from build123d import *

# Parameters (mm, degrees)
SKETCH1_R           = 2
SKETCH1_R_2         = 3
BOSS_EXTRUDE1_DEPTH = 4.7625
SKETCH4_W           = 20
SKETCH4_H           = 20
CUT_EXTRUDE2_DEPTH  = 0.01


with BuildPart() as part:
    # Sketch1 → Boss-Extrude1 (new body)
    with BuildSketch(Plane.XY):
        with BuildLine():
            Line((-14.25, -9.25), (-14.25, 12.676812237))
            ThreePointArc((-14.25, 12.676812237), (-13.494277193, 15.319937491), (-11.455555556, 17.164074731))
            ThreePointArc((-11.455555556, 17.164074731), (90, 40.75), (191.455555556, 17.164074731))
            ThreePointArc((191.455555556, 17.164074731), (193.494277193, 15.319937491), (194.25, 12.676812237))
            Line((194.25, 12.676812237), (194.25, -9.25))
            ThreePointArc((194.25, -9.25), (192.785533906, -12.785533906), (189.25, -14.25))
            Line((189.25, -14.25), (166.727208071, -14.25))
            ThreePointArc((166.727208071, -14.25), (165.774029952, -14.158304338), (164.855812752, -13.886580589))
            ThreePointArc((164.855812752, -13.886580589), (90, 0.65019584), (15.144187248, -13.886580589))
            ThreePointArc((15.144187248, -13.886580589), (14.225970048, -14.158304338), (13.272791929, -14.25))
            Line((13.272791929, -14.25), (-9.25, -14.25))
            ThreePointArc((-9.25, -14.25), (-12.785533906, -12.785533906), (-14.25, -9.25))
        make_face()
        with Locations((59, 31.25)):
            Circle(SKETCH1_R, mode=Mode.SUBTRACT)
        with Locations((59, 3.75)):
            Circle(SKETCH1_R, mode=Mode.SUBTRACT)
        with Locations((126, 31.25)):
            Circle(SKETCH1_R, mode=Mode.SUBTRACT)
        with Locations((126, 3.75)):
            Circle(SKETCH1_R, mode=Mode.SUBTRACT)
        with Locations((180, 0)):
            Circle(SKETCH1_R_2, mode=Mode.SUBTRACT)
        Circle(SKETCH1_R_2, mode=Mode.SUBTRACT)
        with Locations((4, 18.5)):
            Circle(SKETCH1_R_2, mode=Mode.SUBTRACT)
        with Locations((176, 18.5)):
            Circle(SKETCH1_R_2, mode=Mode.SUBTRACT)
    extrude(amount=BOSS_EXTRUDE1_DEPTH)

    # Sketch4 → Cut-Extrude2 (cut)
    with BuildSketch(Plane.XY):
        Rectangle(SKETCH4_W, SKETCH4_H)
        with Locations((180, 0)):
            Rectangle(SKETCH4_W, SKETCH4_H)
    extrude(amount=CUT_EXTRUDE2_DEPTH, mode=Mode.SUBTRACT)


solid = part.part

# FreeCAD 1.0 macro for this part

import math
import FreeCAD as App
import Part
import Sketcher

doc = App.newDocument("Part")
body = doc.addObject("PartDesign::Body", "Body")

# Sketch on XY plane
sketch1 = doc.addObject("Sketcher::SketchObject", "Sketch")
body.addObject(sketch1)
sketch1.AttachmentSupport = (doc.XY_Plane, [""])
sketch1.MapMode = "FlatFace"
sketch1.addGeometry([
    Part.LineSegment(App.Vector(-14.25, 12.676812, 0), App.Vector(-14.25, -9.25, 0)),  # 0
    Part.ArcOfCircle(Part.Circle(App.Vector(-9.25, -9.25, 0), App.Vector(0, 0, 1), 5), math.radians(180), math.radians(270)),  # 1
    Part.LineSegment(App.Vector(-9.25, -14.25, 0), App.Vector(13.272792, -14.25, 0)),  # 2
    Part.ArcOfCircle(Part.Circle(App.Vector(13.272792, -9.25, 0), App.Vector(0, 0, 1), 5), math.radians(-90), math.radians(-68.020238)),  # 3
    Part.ArcOfCircle(Part.Circle(App.Vector(90, -199.349804, 0), App.Vector(0, 0, 1), 200), math.radians(68.020238), math.radians(111.979762)),  # 4
    Part.ArcOfCircle(Part.Circle(App.Vector(166.727208, -9.25, 0), App.Vector(0, 0, 1), 5), math.radians(-111.979762), math.radians(-90)),  # 5
    Part.LineSegment(App.Vector(166.727208, -14.25, 0), App.Vector(189.25, -14.25, 0)),  # 6
    Part.ArcOfCircle(Part.Circle(App.Vector(189.25, -9.25, 0), App.Vector(0, 0, 1), 5), math.radians(-90), math.radians(0)),  # 7
    Part.LineSegment(App.Vector(194.25, -9.25, 0), App.Vector(194.25, 12.676812, 0)),  # 8
    Part.ArcOfCircle(Part.Circle(App.Vector(189.25, 12.676812, 0), App.Vector(0, 0, 1), 5), math.radians(0), math.radians(63.825204)),  # 9
    Part.ArcOfCircle(Part.Circle(App.Vector(90, -189.25, 0), App.Vector(0, 0, 1), 230), math.radians(63.825204), math.radians(116.174796)),  # 10
    Part.ArcOfCircle(Part.Circle(App.Vector(-9.25, 12.676812, 0), App.Vector(0, 0, 1), 5), math.radians(116.174796), math.radians(180)),  # 11
    Part.Circle(App.Vector(180, 0, 0), App.Vector(0, 0, 1), 3),  # 12
    Part.Circle(App.Vector(126, 3.75, 0), App.Vector(0, 0, 1), 2),  # 13
    Part.Circle(App.Vector(59, 3.75, 0), App.Vector(0, 0, 1), 2),  # 14
    Part.Circle(App.Vector(0, 0, 0), App.Vector(0, 0, 1), 3),  # 15
    Part.Circle(App.Vector(176, 18.5, 0), App.Vector(0, 0, 1), 3),  # 16
    Part.Circle(App.Vector(126, 31.25, 0), App.Vector(0, 0, 1), 2),  # 17
    Part.Circle(App.Vector(4, 18.5, 0), App.Vector(0, 0, 1), 3),  # 18
    Part.Circle(App.Vector(59, 31.25, 0), App.Vector(0, 0, 1), 2),  # 19
], False)
sketch1.addConstraint([
    Sketcher.Constraint("Tangent", 0, 2, 1, 1),
    Sketcher.Constraint("Tangent", 1, 2, 2, 1),
    Sketcher.Constraint("Tangent", 2, 2, 3, 1),
    Sketcher.Constraint("Tangent", 3, 2, 4, 2),
    Sketcher.Constraint("Tangent", 4, 1, 5, 1),
    Sketcher.Constraint("Tangent", 5, 2, 6, 1),
    Sketcher.Constraint("Tangent", 6, 2, 7, 1),
    Sketcher.Constraint("Tangent", 7, 2, 8, 1),
    Sketcher.Constraint("Tangent", 8, 2, 9, 1),
    Sketcher.Constraint("Tangent", 9, 2, 10, 1),
    Sketcher.Constraint("Tangent", 10, 2, 11, 1),
    Sketcher.Constraint("Tangent", 11, 2, 0, 1),
    Sketcher.Constraint("Vertical", 0),
    Sketcher.Constraint("Horizontal", 2),
    Sketcher.Constraint("Horizontal", 6),
    Sketcher.Constraint("Vertical", 8),
    Sketcher.Constraint("Coincident", 15, 3, -1, 1),
    Sketcher.Constraint("Equal", 1, 3),
    Sketcher.Constraint("Equal", 3, 5),
    Sketcher.Constraint("Equal", 5, 7),
    Sketcher.Constraint("Equal", 7, 9),
    Sketcher.Constraint("Equal", 9, 11),
    Sketcher.Constraint("Equal", 13, 14),
    Sketcher.Constraint("Equal", 12, 15),
    Sketcher.Constraint("Equal", 15, 16),
    Sketcher.Constraint("Equal", 14, 17),
    Sketcher.Constraint("Equal", 16, 18),
    Sketcher.Constraint("Equal", 17, 19),
    Sketcher.Constraint("PointOnObject", 12, 3, -1),
    Sketcher.Constraint("Horizontal", 3, 3, 5, 3),
    Sketcher.Constraint("Horizontal", 9, 3, 11, 3),
    Sketcher.Constraint("Horizontal", 13, 3, 14, 3),
    Sketcher.Constraint("Horizontal", 16, 3, 18, 3),
    Sketcher.Constraint("Horizontal", 17, 3, 19, 3),
    Sketcher.Constraint("Vertical", 4, 3, 10, 3),
    Sketcher.Constraint("Vertical", 13, 3, 17, 3),
    Sketcher.Constraint("Vertical", 14, 3, 19, 3),
    Sketcher.Constraint("Diameter", 12, 6.0),
    Sketcher.Constraint("Diameter", 13, 4.0),
    Sketcher.Constraint("Radius", 1, 5.0),
    Sketcher.Constraint("Radius", 4, 200.0),
    Sketcher.Constraint("Radius", 10, 230.0),
    Sketcher.Constraint("DistanceX", -1, 1, 4, 3, 90.0),
    Sketcher.Constraint("DistanceX", -1, 1, 12, 3, 180.0),
    Sketcher.Constraint("DistanceX", -1, 1, 13, 3, 126.0),
    Sketcher.Constraint("DistanceX", -1, 1, 14, 3, 59.0),
    Sketcher.Constraint("DistanceX", -1, 1, 16, 3, 176.0),
    Sketcher.Constraint("DistanceX", -1, 1, 18, 3, 4.0),
    Sketcher.Constraint("DistanceY", 10, 3, 3, 3, 180.0),
    Sketcher.Constraint("DistanceY", 5, 3, 13, 3, 13.0),
    Sketcher.Constraint("DistanceY", -1, 1, 16, 3, 18.5),
    Sketcher.Constraint("DistanceX", 1, 3, 7, 3, 198.5),
    Sketcher.Constraint("DistanceY", 13, 3, 17, 3, 27.5),
    Sketcher.Constraint("DistanceY", 1, 3, -1, 1, 9.25),
    Sketcher.Constraint("DistanceX", 2, 1, 2, 2, 22.522792),
])
pad1 = doc.addObject("PartDesign::Pad", "Pad")
body.addObject(pad1)
pad1.Profile = sketch1
pad1.Length = 4.7625

# Sketch on XY plane
sketch2 = doc.addObject("Sketcher::SketchObject", "Sketch001")
body.addObject(sketch2)
sketch2.AttachmentSupport = (doc.XY_Plane, [""])
sketch2.MapMode = "FlatFace"
sketch2.addGeometry([
    Part.LineSegment(App.Vector(-10, 10, 0), App.Vector(-10, -10, 0)),  # 0
    Part.LineSegment(App.Vector(-10, -10, 0), App.Vector(10, -10, 0)),  # 1
    Part.LineSegment(App.Vector(10, -10, 0), App.Vector(10, 10, 0)),  # 2
    Part.LineSegment(App.Vector(10, 10, 0), App.Vector(-10, 10, 0)),  # 3
    Part.LineSegment(App.Vector(170, 10, 0), App.Vector(170, -10, 0)),  # 4
    Part.LineSegment(App.Vector(170, -10, 0), App.Vector(190, -10, 0)),  # 5
    Part.LineSegment(App.Vector(190, -10, 0), App.Vector(190, 10, 0)),  # 6
    Part.LineSegment(App.Vector(190, 10, 0), App.Vector(170, 10, 0)),  # 7
], False)
sketch2.addConstraint([
    Sketcher.Constraint("Coincident", 0, 2, 1, 1),
    Sketcher.Constraint("Coincident", 1, 2, 2, 1),
    Sketcher.Constraint("Coincident", 2, 2, 3, 1),
    Sketcher.Constraint("Coincident", 3, 2, 0, 1),
    Sketcher.Constraint("Coincident", 4, 2, 5, 1),
    Sketcher.Constraint("Coincident", 5, 2, 6, 1),
    Sketcher.Constraint("Coincident", 6, 2, 7, 1),
    Sketcher.Constraint("Coincident", 7, 2, 4, 1),
    Sketcher.Constraint("Vertical", 0),
    Sketcher.Constraint("Horizontal", 1),
    Sketcher.Constraint("Vertical", 2),
    Sketcher.Constraint("Horizontal", 3),
    Sketcher.Constraint("Vertical", 4),
    Sketcher.Constraint("Horizontal", 5),
    Sketcher.Constraint("Vertical", 6),
    Sketcher.Constraint("Horizontal", 7),
    Sketcher.Constraint("Symmetric", 0, 2, 2, 2, -1, 1),
    Sketcher.Constraint("Horizontal", 1, 2, 4, 2),
    Sketcher.Constraint("Horizontal", 3, 2, 6, 2),
    Sketcher.Constraint("Equal", 3, 5),
    Sketcher.Constraint("Equal", 7, 0),
    Sketcher.Constraint("DistanceX", 1, 1, 1, 2, 20.0),
    Sketcher.Constraint("DistanceX", -1, 1, 4, 2, 170.0),
])
pocket1 = doc.addObject("PartDesign::Pocket", "Pocket")
body.addObject(pocket1)
pocket1.Profile = sketch2
pocket1.Length = 0.01
pocket1.Reversed = True

doc.recompute()
